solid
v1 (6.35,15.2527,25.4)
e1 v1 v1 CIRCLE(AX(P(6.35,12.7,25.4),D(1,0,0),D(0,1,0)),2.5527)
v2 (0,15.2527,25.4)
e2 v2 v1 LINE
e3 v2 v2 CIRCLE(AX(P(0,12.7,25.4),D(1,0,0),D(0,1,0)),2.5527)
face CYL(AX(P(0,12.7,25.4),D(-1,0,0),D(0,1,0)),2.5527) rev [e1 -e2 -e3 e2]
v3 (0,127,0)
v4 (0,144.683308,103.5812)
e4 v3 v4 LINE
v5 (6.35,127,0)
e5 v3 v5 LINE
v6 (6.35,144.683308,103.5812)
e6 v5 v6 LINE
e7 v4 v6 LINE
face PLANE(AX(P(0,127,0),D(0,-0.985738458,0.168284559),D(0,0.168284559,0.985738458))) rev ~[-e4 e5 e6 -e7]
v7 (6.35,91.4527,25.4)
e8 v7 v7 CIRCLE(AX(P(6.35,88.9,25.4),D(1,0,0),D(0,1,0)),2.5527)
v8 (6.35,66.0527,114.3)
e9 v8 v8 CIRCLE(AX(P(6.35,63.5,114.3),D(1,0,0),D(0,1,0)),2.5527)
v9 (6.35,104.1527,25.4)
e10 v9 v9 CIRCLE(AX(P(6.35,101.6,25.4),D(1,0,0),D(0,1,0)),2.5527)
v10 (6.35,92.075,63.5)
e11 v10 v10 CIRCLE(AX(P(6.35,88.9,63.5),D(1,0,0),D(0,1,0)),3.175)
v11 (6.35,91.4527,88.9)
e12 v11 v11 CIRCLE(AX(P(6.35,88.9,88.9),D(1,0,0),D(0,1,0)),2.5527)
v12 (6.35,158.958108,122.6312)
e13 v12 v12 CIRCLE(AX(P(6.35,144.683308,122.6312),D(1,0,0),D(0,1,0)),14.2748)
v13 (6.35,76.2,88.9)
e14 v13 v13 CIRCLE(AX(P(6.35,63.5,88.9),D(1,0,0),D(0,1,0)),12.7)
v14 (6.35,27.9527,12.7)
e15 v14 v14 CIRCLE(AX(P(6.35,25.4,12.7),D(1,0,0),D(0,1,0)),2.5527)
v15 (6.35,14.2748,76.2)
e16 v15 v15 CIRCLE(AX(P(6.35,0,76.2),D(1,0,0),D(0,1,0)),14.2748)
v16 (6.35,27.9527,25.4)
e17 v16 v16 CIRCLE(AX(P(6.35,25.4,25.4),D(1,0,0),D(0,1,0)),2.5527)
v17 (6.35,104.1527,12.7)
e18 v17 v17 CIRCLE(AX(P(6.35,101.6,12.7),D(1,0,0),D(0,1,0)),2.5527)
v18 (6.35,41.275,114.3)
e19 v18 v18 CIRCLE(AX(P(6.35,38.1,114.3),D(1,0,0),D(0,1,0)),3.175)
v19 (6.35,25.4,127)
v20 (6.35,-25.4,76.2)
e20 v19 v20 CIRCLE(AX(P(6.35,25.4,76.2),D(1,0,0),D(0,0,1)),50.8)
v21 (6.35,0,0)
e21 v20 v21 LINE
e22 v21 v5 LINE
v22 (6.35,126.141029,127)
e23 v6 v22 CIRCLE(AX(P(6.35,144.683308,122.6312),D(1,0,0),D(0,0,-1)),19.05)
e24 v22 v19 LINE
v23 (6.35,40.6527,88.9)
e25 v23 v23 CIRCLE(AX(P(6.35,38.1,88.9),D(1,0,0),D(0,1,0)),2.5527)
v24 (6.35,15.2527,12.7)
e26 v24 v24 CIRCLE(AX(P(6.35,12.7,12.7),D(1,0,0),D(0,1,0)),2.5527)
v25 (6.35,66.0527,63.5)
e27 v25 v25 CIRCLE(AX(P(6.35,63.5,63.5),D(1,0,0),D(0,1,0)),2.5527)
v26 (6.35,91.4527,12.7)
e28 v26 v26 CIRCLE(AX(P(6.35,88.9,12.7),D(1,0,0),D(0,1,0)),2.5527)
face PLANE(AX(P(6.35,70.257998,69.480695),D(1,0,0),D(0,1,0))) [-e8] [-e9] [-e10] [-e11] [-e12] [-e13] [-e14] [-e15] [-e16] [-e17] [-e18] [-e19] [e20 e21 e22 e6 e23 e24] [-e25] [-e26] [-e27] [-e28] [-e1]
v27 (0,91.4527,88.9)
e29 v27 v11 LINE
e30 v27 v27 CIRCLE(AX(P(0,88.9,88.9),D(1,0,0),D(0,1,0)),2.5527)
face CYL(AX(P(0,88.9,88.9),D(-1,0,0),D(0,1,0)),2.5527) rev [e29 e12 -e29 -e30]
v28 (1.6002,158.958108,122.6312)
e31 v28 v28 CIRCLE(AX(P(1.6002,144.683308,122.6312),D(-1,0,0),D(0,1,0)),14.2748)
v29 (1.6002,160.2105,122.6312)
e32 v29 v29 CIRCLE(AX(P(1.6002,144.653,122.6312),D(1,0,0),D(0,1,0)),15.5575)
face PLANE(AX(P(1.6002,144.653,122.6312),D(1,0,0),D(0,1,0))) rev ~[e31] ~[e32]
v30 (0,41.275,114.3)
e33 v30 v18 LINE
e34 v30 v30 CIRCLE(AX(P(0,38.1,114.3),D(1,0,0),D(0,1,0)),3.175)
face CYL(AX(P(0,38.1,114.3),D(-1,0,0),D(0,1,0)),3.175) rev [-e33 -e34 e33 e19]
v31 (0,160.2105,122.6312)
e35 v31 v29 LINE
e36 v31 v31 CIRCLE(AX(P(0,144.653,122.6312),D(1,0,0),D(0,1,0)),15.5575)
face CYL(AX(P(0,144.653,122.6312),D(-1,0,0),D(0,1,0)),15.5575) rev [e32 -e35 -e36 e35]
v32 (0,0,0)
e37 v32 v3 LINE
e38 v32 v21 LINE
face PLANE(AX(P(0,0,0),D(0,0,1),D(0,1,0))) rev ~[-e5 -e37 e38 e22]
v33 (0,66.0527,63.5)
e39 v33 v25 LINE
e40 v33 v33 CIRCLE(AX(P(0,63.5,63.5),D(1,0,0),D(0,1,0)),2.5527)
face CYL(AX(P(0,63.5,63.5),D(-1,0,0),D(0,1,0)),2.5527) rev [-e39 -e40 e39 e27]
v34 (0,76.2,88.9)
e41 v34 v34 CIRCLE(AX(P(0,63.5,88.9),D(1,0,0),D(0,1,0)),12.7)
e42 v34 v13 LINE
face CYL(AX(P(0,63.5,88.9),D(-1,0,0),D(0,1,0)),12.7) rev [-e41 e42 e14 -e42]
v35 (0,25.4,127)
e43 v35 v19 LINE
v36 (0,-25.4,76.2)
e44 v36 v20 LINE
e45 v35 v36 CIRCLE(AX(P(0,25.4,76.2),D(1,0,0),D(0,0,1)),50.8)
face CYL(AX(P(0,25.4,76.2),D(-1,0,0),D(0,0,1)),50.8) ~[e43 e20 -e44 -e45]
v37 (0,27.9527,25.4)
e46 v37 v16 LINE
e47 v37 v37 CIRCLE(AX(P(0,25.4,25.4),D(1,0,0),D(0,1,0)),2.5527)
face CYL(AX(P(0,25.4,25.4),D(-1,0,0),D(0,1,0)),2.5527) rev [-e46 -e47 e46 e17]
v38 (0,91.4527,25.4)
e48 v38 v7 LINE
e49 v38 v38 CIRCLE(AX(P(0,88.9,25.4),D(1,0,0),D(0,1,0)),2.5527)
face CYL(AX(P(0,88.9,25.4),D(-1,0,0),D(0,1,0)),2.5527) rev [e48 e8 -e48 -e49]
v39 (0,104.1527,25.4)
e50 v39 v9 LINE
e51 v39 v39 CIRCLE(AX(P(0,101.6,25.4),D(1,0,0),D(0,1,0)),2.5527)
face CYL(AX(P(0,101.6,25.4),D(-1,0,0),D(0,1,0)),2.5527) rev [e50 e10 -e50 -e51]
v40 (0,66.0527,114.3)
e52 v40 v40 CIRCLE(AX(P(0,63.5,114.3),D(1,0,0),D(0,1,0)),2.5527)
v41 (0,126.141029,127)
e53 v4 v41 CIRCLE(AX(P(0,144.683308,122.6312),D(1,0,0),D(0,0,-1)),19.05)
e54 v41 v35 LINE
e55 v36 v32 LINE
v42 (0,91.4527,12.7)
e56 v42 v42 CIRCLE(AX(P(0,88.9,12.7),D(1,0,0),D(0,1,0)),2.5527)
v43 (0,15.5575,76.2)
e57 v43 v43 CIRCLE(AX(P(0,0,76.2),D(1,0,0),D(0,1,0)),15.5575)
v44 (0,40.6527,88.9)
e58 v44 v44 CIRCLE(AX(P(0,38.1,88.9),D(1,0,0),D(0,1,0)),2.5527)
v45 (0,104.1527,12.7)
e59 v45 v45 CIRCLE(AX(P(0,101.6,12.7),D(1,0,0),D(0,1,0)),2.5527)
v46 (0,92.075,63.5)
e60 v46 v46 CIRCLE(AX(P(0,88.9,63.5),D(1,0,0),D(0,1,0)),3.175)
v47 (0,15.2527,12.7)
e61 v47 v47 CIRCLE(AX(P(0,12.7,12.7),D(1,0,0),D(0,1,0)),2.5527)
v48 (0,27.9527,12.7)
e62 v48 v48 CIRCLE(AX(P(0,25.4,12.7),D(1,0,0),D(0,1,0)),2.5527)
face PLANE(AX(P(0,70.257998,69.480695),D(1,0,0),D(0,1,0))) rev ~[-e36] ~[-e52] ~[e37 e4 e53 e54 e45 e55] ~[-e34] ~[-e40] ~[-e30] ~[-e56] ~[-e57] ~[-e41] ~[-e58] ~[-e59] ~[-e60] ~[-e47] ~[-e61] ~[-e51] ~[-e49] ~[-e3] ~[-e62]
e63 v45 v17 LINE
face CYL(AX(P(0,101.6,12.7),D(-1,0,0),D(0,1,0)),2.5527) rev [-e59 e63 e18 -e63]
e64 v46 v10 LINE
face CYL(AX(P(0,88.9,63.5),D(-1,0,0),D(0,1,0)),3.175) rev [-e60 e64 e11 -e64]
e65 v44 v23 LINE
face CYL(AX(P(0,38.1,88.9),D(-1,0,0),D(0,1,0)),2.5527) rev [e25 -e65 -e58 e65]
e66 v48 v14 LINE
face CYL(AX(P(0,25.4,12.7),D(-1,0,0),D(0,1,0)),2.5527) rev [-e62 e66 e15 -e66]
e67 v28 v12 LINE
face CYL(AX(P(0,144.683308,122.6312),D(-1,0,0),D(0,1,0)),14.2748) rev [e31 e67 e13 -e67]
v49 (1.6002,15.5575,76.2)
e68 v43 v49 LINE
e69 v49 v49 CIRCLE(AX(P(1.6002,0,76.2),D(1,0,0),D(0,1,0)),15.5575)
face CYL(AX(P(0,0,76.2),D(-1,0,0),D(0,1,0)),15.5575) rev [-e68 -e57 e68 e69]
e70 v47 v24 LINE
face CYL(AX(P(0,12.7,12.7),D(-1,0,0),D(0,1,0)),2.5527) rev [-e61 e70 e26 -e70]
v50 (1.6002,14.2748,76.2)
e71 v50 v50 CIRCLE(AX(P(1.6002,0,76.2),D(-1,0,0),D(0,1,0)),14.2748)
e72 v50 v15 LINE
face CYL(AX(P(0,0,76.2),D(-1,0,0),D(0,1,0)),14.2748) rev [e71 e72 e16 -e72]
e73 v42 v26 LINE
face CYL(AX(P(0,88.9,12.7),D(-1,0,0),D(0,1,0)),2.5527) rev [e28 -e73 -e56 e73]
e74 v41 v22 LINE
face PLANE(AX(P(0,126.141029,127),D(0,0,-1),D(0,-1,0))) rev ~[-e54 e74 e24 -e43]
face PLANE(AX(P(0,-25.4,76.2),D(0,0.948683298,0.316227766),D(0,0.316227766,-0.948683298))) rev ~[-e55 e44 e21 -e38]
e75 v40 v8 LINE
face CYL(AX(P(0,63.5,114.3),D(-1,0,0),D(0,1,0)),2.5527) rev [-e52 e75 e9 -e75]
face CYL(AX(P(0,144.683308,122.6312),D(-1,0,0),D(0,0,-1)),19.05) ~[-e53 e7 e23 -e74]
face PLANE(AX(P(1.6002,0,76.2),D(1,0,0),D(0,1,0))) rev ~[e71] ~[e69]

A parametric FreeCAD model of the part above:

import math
import FreeCAD as App
import Part
import Sketcher
from FreeCAD import Vector
Q = App.Units.Quantity

doc = App.newDocument("Part")
params = doc.addObject("Spreadsheet::Sheet", "Params")
for row, (alias, value) in enumerate([
    ("sketch1_diameter", "1 in"),
    ("sketch1_radius", "2 in"),
    ("sketch1_diameter2", "0.25 in"),
    ("sketch1_width", "5 in"),
    ("sketch1_radius2", "0.75 in"),
    ("pad1_length", "0.25 in"),
    ("sketch2_diameter", "1.225 in"),
    ("pocket1_length", "0.063 in"),
], start=1):
    params.set(f"A{row}", alias)
    params.set(f"B{row}", "=" + value)
    params.setAlias(f"B{row}", alias)

body = doc.addObject("PartDesign::Body", "Body")

sketch1 = doc.addObject("Sketcher::SketchObject", "Sketch")
body.addObject(sketch1)
sketch1.AttachmentSupport = (doc.YZ_Plane, [""])
sketch1.MapMode = "FlatFace"
sketch1.addGeometry([
    Part.LineSegment(Vector(126.1, 127, 0), Vector(25.4, 127, 0)),
    Part.ArcOfCircle(Part.Circle(Vector(25.4, 76.2, 0), Vector(0, 0, 1), 50.8), math.radians(90), math.radians(180)),
    Part.LineSegment(Vector(-25.4, 76.2, 0), Vector(0, 0, 0)),
    Part.LineSegment(Vector(0, 0, 0), Vector(127, 0, 0)),
    Part.LineSegment(Vector(127, 0, 0), Vector(144.7, 103.6, 0)),
    Part.ArcOfCircle(Part.Circle(Vector(144.7, 122.6, 0), Vector(0, 0, 1), 19.1), math.radians(-90), math.radians(167)),
    Part.Circle(Vector(12.7, 12.7, 0), Vector(0, 0, 1), 2.6),
    Part.Circle(Vector(25.4, 12.7, 0), Vector(0, 0, 1), 2.6),
    Part.Circle(Vector(12.7, 25.4, 0), Vector(0, 0, 1), 2.6),
    Part.Circle(Vector(25.4, 25.4, 0), Vector(0, 0, 1), 2.6),
    Part.Circle(Vector(63.5, 63.5, 0), Vector(0, 0, 1), 2.6),
    Part.Circle(Vector(88.9, 12.7, 0), Vector(0, 0, 1), 2.6),
    Part.Circle(Vector(88.9, 25.4, 0), Vector(0, 0, 1), 2.6),
    Part.Circle(Vector(101.6, 12.7, 0), Vector(0, 0, 1), 2.6),
    Part.Circle(Vector(101.6, 25.4, 0), Vector(0, 0, 1), 2.6),
    Part.Circle(Vector(88.9, 63.5, 0), Vector(0, 0, 1), 3.2),
    Part.Circle(Vector(0, 76.2, 0), Vector(0, 0, 1), 14.3),
    Part.Circle(Vector(38.1, 88.9, 0), Vector(0, 0, 1), 2.6),
    Part.Circle(Vector(63.5, 88.9, 0), Vector(0, 0, 1), 12.7),
    Part.Circle(Vector(38.1, 114.3, 0), Vector(0, 0, 1), 3.2),
    Part.Circle(Vector(63.5, 114.3, 0), Vector(0, 0, 1), 2.6),
    Part.Circle(Vector(88.9, 88.9, 0), Vector(0, 0, 1), 2.6),
    Part.Circle(Vector(144.7, 122.6, 0), Vector(0, 0, 1), 14.3),
], False)
sketch1.addConstraint([
    Sketcher.Constraint("Tangent", 0, 2, 1, 1),
    Sketcher.Constraint("Coincident", 1, 2, 2, 1),
    Sketcher.Constraint("Coincident", 2, 2, 3, 1),
    Sketcher.Constraint("Coincident", 3, 2, 4, 1),
    Sketcher.Constraint("Coincident", 4, 2, 5, 1),
    Sketcher.Constraint("Coincident", 5, 2, 0, 1),
    Sketcher.Constraint("Horizontal", 0),
    Sketcher.Constraint("Horizontal", 3),
    Sketcher.Constraint("Coincident", 2, 2, -1, 1),
    Sketcher.Constraint("Coincident", 22, 3, 5, 3),
    Sketcher.Constraint("Equal", 6, 7),
    Sketcher.Constraint("Equal", 7, 8),
    Sketcher.Constraint("Equal", 8, 9),
    Sketcher.Constraint("Equal", 9, 10),
    Sketcher.Constraint("Equal", 10, 11),
    Sketcher.Constraint("Equal", 11, 12),
    Sketcher.Constraint("Equal", 12, 13),
    Sketcher.Constraint("Equal", 13, 14),
    Sketcher.Constraint("Equal", 14, 17),
    Sketcher.Constraint("Equal", 15, 19),
    Sketcher.Constraint("Equal", 17, 20),
    Sketcher.Constraint("Equal", 20, 21),
    Sketcher.Constraint("Equal", 16, 22),
    Sketcher.Constraint("PointOnObject", 16, 3, -2),
    Sketcher.Constraint("Horizontal", 6, 3, 7, 3),
    Sketcher.Constraint("Horizontal", 8, 3, 9, 3),
    Sketcher.Constraint("Horizontal", 7, 3, 11, 3),
    Sketcher.Constraint("Horizontal", 9, 3, 12, 3),
    Sketcher.Constraint("Horizontal", 11, 3, 13, 3),
    Sketcher.Constraint("Horizontal", 12, 3, 14, 3),
    Sketcher.Constraint("Horizontal", 10, 3, 15, 3),
    Sketcher.Constraint("Horizontal", 1, 3, 16, 3),
    Sketcher.Constraint("Horizontal", 17, 3, 18, 3),
    Sketcher.Constraint("Horizontal", 19, 3, 20, 3),
    Sketcher.Constraint("Horizontal", 18, 3, 21, 3),
    Sketcher.Constraint("Horizontal", 16, 3, 1, 2),
    Sketcher.Constraint("Vertical", 1, 3, 7, 3),
    Sketcher.Constraint("Vertical", 6, 3, 8, 3),
    Sketcher.Constraint("Vertical", 7, 3, 9, 3),
    Sketcher.Constraint("Vertical", 11, 3, 12, 3),
    Sketcher.Constraint("Vertical", 13, 3, 14, 3),
    Sketcher.Constraint("Vertical", 12, 3, 15, 3),
    Sketcher.Constraint("Vertical", 10, 3, 18, 3),
    Sketcher.Constraint("Vertical", 17, 3, 19, 3),
    Sketcher.Constraint("Vertical", 18, 3, 20, 3),
    Sketcher.Constraint("Vertical", 15, 3, 21, 3),
    Sketcher.Constraint("Vertical", 22, 3, 4, 2),
    Sketcher.Constraint("Diameter", 18, Q("1 in")),
    Sketcher.Constraint("Radius", 1, Q("2 in")),
    Sketcher.Constraint("Diameter", 15, Q("0.25 in")),
    Sketcher.Constraint("DistanceX", 3, 1, 3, 2, Q("5 in")),
    Sketcher.Constraint("Radius", 5, Q("0.75 in")),
    Sketcher.Constraint("Diameter", 6, Q("0.201 in")),
    Sketcher.Constraint("Diameter", 16, Q("1.124 in")),
    Sketcher.Constraint("DistanceX", -1, 1, 1, 3, Q("1 in")),
    Sketcher.Constraint("DistanceY", -1, 1, 1, 3, Q("3 in")),
    Sketcher.Constraint("DistanceY", -1, 1, 8, 3, Q("1 in")),
    Sketcher.Constraint("DistanceX", -1, 1, 13, 3, Q("4 in")),
    Sketcher.Constraint("DistanceY", 7, 3, 10, 3, Q("2 in")),
    Sketcher.Constraint("DistanceX", 8, 3, 10, 3, Q("2 in")),
    Sketcher.Constraint("DistanceX", 10, 3, 11, 3, Q("1 in")),
    Sketcher.Constraint("DistanceX", 17, 3, 10, 3, Q("1 in")),
    Sketcher.Constraint("DistanceY", 10, 3, 17, 3, Q("1 in")),
    Sketcher.Constraint("DistanceY", 17, 3, 19, 3, Q("1 in")),
    Sketcher.Constraint("DistanceX", -1, 1, 6, 3, Q("0.5 in")),
    Sketcher.Constraint("DistanceY", -1, 1, 6, 3, Q("0.5 in")),
    Sketcher.Constraint("Distance", 4, Q("4.137 in")),
    Sketcher.Constraint("DistanceY", -1, 1, 5, 3, Q("4.828 in")),
])
sketch1.setExpression("Constraints[47]", "Params.sketch1_diameter")
sketch1.setExpression("Constraints[48]", "Params.sketch1_radius")
sketch1.setExpression("Constraints[49]", "Params.sketch1_diameter2")
sketch1.setExpression("Constraints[50]", "Params.sketch1_width")
sketch1.setExpression("Constraints[51]", "Params.sketch1_radius2")
pad1 = doc.addObject("PartDesign::Pad", "Pad")
body.addObject(pad1)
pad1.Profile = sketch1
pad1.setExpression("Length", "Params.pad1_length")

sketch2 = doc.addObject("Sketcher::SketchObject", "Sketch001")
body.addObject(sketch2)
sketch2.AttachmentSupport = (doc.YZ_Plane, [""])
sketch2.MapMode = "FlatFace"
sketch2.addGeometry([
    Part.Circle(Vector(0, 76, 0), Vector(0, 0, 1), 16),
    Part.Circle(Vector(145, 123, 0), Vector(0, 0, 1), 16),
], False)
sketch2.addConstraint([
    Sketcher.Constraint("Equal", 0, 1),
    Sketcher.Constraint("PointOnObject", 0, 3, -2),
    Sketcher.Constraint("Diameter", 0, Q("1.225 in")),
    Sketcher.Constraint("DistanceY", -1, 1, 0, 3, Q("3 in")),
    Sketcher.Constraint("DistanceX", -1, 1, 1, 3, Q("5.695 in")),
    Sketcher.Constraint("DistanceY", -1, 1, 1, 3, Q("4.828 in")),
])
sketch2.setExpression("Constraints[2]", "Params.sketch2_diameter")
pocket1 = doc.addObject("PartDesign::Pocket", "Pocket")
body.addObject(pocket1)
pocket1.Profile = sketch2
pocket1.setExpression("Length", "Params.pocket1_length")
pocket1.Reversed = True

doc.recompute()
